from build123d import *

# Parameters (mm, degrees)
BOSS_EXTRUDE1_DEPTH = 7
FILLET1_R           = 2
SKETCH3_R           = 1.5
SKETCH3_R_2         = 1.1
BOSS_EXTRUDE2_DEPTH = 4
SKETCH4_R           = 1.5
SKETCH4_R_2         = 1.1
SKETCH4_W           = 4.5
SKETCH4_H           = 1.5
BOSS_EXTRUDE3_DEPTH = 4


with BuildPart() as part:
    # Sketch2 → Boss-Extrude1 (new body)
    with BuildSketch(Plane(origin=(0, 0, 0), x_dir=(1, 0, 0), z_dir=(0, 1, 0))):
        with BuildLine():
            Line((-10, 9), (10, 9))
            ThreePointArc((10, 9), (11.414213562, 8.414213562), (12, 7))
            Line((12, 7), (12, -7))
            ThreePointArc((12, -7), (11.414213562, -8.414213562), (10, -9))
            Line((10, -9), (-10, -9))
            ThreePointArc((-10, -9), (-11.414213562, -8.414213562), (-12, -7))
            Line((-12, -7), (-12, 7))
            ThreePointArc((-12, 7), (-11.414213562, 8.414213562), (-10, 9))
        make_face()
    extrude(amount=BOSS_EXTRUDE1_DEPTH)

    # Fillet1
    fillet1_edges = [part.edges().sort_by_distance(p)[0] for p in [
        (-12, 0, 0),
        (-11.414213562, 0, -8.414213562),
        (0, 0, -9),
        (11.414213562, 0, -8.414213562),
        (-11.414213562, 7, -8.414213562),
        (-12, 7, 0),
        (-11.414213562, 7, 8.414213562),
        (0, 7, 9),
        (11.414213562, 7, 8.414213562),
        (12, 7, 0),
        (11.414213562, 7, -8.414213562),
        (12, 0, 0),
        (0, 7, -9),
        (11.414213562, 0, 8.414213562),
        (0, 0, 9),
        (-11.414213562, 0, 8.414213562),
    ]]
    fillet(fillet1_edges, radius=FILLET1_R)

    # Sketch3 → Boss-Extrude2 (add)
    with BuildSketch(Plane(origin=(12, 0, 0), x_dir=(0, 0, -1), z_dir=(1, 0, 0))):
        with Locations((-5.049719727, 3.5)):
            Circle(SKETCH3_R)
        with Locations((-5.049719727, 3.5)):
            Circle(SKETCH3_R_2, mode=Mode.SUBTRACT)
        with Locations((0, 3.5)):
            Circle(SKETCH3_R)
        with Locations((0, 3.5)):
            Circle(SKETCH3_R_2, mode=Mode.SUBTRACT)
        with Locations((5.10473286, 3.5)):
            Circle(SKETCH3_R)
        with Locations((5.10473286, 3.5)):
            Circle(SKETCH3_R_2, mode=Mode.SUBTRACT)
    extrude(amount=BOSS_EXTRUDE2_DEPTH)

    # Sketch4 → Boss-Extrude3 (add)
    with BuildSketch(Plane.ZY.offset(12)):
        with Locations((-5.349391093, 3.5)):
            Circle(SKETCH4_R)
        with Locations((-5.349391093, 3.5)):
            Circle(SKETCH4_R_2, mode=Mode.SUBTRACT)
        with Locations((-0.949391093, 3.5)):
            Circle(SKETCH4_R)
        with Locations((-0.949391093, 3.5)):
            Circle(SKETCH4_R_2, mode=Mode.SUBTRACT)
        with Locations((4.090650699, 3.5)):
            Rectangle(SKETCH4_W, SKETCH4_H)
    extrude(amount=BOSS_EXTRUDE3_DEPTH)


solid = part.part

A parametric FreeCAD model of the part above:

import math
import FreeCAD as App
import Part
import Sketcher

V = App.Vector


def edges_at(feature, points):
    """Names of the edges that pass closest to the given points."""
    edges = feature.Shape.Edges
    near = lambda p: min(range(len(edges)), key=lambda i: edges[i].distToShape(Part.Vertex(*p))[0])
    return sorted({f"Edge{near(p) + 1}" for p in points})


def add_polygon(sketch, points):
    """Adds a closed chain of lines whose ends are joined by coincident constraints."""
    first, n = sketch.GeometryCount, len(points)
    for a, b in zip(points, points[1:] + points[:1]):
        sketch.addGeometry(Part.LineSegment(App.Vector(*a, 0), App.Vector(*b, 0)), False)
    for i in range(n):
        sketch.addConstraint(Sketcher.Constraint("Coincident", first + i, 2, first + (i + 1) % n, 1))

doc = App.newDocument("Part")
params = doc.addObject("Spreadsheet::Sheet", "Params")
for row, (alias, value) in enumerate([
    ("sketch1_radius", "2 mm"),
    ("sketch1_width", "20 mm"),
    ("sketch1_height", "14 mm"),
    ("pad1_length", "7 mm"),
    ("fillet_radius", "2 mm"),
    ("sketch2_diameter", "3 mm"),
    ("sketch2_diameter2", "2.2 mm"),
    ("pad2_length", "4 mm"),
    ("sketch3_diameter", "3 mm"),
    ("sketch3_diameter2", "2.2 mm"),
    ("sketch3_width", "1.5 mm"),
    ("sketch3_height", "4.5 mm"),
    ("pad3_length", "4 mm"),
], start=1):
    params.set(f"A{row}", alias)
    params.set(f"B{row}", "=" + value)
    params.setAlias(f"B{row}", alias)

body = doc.addObject("PartDesign::Body", "Body")

sketch1 = doc.addObject("Sketcher::SketchObject", "Sketch")
body.addObject(sketch1)
sketch1.AttachmentSupport = (doc.XZ_Plane, [""])
sketch1.MapMode = "FlatFace"
sketch1.addGeometry([
    Part.LineSegment(V(10, -9, 0), V(-10, -9, 0)),
    Part.ArcOfCircle(Part.Circle(V(-10, -7, 0), V(0, 0, 1), 2), math.radians(-180), math.radians(-90)),
    Part.LineSegment(V(-12, -7, 0), V(-12, 7, 0)),
    Part.ArcOfCircle(Part.Circle(V(-10, 7, 0), V(0, 0, 1), 2), math.radians(90), math.radians(180)),
    Part.LineSegment(V(-10, 9, 0), V(10, 9, 0)),
    Part.ArcOfCircle(Part.Circle(V(10, 7, 0), V(0, 0, 1), 2), math.radians(0), math.radians(90)),
    Part.LineSegment(V(12, 7, 0), V(12, -7, 0)),
    Part.ArcOfCircle(Part.Circle(V(10, -7, 0), V(0, 0, 1), 2), math.radians(-90), math.radians(0)),
], False)
sketch1.addConstraint([
    Sketcher.Constraint("Tangent", 0, 2, 1, 2),
    Sketcher.Constraint("Tangent", 1, 1, 2, 1),
    Sketcher.Constraint("Tangent", 2, 2, 3, 2),
    Sketcher.Constraint("Tangent", 3, 1, 4, 1),
    Sketcher.Constraint("Tangent", 4, 2, 5, 2),
    Sketcher.Constraint("Tangent", 5, 1, 6, 1),
    Sketcher.Constraint("Tangent", 6, 2, 7, 2),
    Sketcher.Constraint("Tangent", 7, 1, 0, 1),
    Sketcher.Constraint("Horizontal", 0),
    Sketcher.Constraint("Vertical", 2),
    Sketcher.Constraint("Horizontal", 4),
    Sketcher.Constraint("Vertical", 6),
    Sketcher.Constraint("Equal", 1, 3),
    Sketcher.Constraint("Equal", 3, 5),
    Sketcher.Constraint("Equal", 5, 7),
    Sketcher.Constraint("Symmetric", 1, 3, 5, 3, -1, 1),
    Sketcher.Constraint("Radius", 1, 2.0),
    Sketcher.Constraint("DistanceX", 0, 2, 0, 1, 20.0),
    Sketcher.Constraint("DistanceY", 2, 1, 2, 2, 14.0),
])
sketch1.setExpression("Constraints[16]", "Params.sketch1_radius")
sketch1.setExpression("Constraints[17]", "Params.sketch1_width")
sketch1.setExpression("Constraints[18]", "Params.sketch1_height")
pad1 = doc.addObject("PartDesign::Pad", "Pad")
body.addObject(pad1)
pad1.Profile = sketch1
pad1.setExpression("Length", "Params.pad1_length")
pad1.Reversed = True
doc.recompute()

fillet = doc.addObject("PartDesign::Fillet", "Fillet")
body.addObject(fillet)
fillet.Base = (pad1, edges_at(pad1, [
    (-12, 0, 0),
    (-11.414, 0, -8.414),
    (0, 0, -9),
    (11.414, 0, -8.414),
    (-11.414, 7, -8.414),
    (-12, 7, 0),
    (-11.414, 7, 8.414),
    (0, 7, 9),
    (11.414, 7, 8.414),
    (12, 7, 0),
    (11.414, 7, -8.414),
    (12, 0, 0),
    (0, 7, -9),
    (11.414, 0, 8.414),
    (0, 0, 9),
    (-11.414, 0, 8.414),
]))
fillet.setExpression("Radius", "Params.fillet_radius")

sketch2 = doc.addObject("Sketcher::SketchObject", "Sketch001")
body.addObject(sketch2)
sketch2.AttachmentSupport = (doc.YZ_Plane, [""])
sketch2.MapMode = "FlatFace"
sketch2.AttachmentOffset = App.Placement(V(0, 0, 12), App.Rotation())
sketch2.addGeometry([
    Part.Circle(V(3.5, 5, 0), V(0, 0, 1), 1.5),
    Part.Circle(V(3.5, 5, 0), V(0, 0, 1), 1.1),
    Part.Circle(V(3.5, 0, 0), V(0, 0, 1), 1.5),
    Part.Circle(V(3.5, 0, 0), V(0, 0, 1), 1.1),
    Part.Circle(V(3.5, -5.1, 0), V(0, 0, 1), 1.5),
    Part.Circle(V(3.5, -5.1, 0), V(0, 0, 1), 1.1),
], False)
sketch2.addConstraint([
    Sketcher.Constraint("Coincident", 1, 3, 0, 3),
    Sketcher.Constraint("Coincident", 3, 3, 2, 3),
    Sketcher.Constraint("Coincident", 5, 3, 4, 3),
    Sketcher.Constraint("Equal", 0, 2),
    Sketcher.Constraint("Equal", 1, 3),
    Sketcher.Constraint("Equal", 2, 4),
    Sketcher.Constraint("Equal", 3, 5),
    Sketcher.Constraint("PointOnObject", 2, 3, -1),
    Sketcher.Constraint("Vertical", 1, 3, 2, 3),
    Sketcher.Constraint("Vertical", 3, 3, 4, 3),
    Sketcher.Constraint("Diameter", 0, 3.0),
    Sketcher.Constraint("Diameter", 1, 2.2),
    Sketcher.Constraint("DistanceX", -1, 1, 0, 3, 3.5),
    Sketcher.Constraint("DistanceY", -1, 1, 0, 3, 5.04972),
    Sketcher.Constraint("DistanceY", 4, 3, -1, 1, 5.104733),
])
sketch2.setExpression("Constraints[10]", "Params.sketch2_diameter")
sketch2.setExpression("Constraints[11]", "Params.sketch2_diameter2")
pad2 = doc.addObject("PartDesign::Pad", "Pad001")
body.addObject(pad2)
pad2.Profile = sketch2
pad2.setExpression("Length", "Params.pad2_length")

sketch3 = doc.addObject("Sketcher::SketchObject", "Sketch002")
body.addObject(sketch3)
sketch3.AttachmentSupport = (doc.YZ_Plane, [""])
sketch3.MapMode = "FlatFace"
sketch3.AttachmentOffset = App.Placement(V(0, 0, -12), App.Rotation())
sketch3.addGeometry(Part.Circle(V(3.5, -5.3, 0), V(0, 0, 1), 1.5), False)
sketch3.addGeometry(Part.Circle(V(3.5, -5.3, 0), V(0, 0, 1), 1.1), False)
sketch3.addGeometry(Part.Circle(V(3.5, -0.9, 0), V(0, 0, 1), 1.5), False)
sketch3.addGeometry(Part.Circle(V(3.5, -0.9, 0), V(0, 0, 1), 1.1), False)
add_polygon(sketch3, [(4.2, 1.8), (2.8, 1.8), (2.8, 6.3), (4.2, 6.3)])
sketch3.addConstraint([
    Sketcher.Constraint("Horizontal", 4),
    Sketcher.Constraint("Vertical", 5),
    Sketcher.Constraint("Horizontal", 6),
    Sketcher.Constraint("Vertical", 7),
    Sketcher.Constraint("Coincident", 1, 3, 0, 3),
    Sketcher.Constraint("Coincident", 3, 3, 2, 3),
    Sketcher.Constraint("Equal", 0, 2),
    Sketcher.Constraint("Equal", 1, 3),
    Sketcher.Constraint("Vertical", 1, 3, 2, 3),
    Sketcher.Constraint("Diameter", 0, 3.0),
    Sketcher.Constraint("Diameter", 1, 2.2),
    Sketcher.Constraint("DistanceX", 4, 2, 4, 1, 1.5),
    Sketcher.Constraint("DistanceY", 5, 1, 5, 2, 4.5),
    Sketcher.Constraint("DistanceX", -1, 1, 0, 3, 3.5),
    Sketcher.Constraint("DistanceY", 0, 3, 2, 3, 4.4),
    Sketcher.Constraint("DistanceX", -1, 1, 4, 2, 2.75),
    Sketcher.Constraint("DistanceY", 0, 3, -1, 1, 5.349391),
    Sketcher.Constraint("DistanceY", -1, 1, 4, 2, 1.840651),
])
sketch3.setExpression("Constraints[13]", "Params.sketch3_diameter")
sketch3.setExpression("Constraints[14]", "Params.sketch3_diameter2")
sketch3.setExpression("Constraints[15]", "Params.sketch3_width")
sketch3.setExpression("Constraints[16]", "Params.sketch3_height")
pad3 = doc.addObject("PartDesign::Pad", "Pad002")
body.addObject(pad3)
pad3.Profile = sketch3
pad3.setExpression("Length", "Params.pad3_length")
pad3.Reversed = True

doc.recompute()
